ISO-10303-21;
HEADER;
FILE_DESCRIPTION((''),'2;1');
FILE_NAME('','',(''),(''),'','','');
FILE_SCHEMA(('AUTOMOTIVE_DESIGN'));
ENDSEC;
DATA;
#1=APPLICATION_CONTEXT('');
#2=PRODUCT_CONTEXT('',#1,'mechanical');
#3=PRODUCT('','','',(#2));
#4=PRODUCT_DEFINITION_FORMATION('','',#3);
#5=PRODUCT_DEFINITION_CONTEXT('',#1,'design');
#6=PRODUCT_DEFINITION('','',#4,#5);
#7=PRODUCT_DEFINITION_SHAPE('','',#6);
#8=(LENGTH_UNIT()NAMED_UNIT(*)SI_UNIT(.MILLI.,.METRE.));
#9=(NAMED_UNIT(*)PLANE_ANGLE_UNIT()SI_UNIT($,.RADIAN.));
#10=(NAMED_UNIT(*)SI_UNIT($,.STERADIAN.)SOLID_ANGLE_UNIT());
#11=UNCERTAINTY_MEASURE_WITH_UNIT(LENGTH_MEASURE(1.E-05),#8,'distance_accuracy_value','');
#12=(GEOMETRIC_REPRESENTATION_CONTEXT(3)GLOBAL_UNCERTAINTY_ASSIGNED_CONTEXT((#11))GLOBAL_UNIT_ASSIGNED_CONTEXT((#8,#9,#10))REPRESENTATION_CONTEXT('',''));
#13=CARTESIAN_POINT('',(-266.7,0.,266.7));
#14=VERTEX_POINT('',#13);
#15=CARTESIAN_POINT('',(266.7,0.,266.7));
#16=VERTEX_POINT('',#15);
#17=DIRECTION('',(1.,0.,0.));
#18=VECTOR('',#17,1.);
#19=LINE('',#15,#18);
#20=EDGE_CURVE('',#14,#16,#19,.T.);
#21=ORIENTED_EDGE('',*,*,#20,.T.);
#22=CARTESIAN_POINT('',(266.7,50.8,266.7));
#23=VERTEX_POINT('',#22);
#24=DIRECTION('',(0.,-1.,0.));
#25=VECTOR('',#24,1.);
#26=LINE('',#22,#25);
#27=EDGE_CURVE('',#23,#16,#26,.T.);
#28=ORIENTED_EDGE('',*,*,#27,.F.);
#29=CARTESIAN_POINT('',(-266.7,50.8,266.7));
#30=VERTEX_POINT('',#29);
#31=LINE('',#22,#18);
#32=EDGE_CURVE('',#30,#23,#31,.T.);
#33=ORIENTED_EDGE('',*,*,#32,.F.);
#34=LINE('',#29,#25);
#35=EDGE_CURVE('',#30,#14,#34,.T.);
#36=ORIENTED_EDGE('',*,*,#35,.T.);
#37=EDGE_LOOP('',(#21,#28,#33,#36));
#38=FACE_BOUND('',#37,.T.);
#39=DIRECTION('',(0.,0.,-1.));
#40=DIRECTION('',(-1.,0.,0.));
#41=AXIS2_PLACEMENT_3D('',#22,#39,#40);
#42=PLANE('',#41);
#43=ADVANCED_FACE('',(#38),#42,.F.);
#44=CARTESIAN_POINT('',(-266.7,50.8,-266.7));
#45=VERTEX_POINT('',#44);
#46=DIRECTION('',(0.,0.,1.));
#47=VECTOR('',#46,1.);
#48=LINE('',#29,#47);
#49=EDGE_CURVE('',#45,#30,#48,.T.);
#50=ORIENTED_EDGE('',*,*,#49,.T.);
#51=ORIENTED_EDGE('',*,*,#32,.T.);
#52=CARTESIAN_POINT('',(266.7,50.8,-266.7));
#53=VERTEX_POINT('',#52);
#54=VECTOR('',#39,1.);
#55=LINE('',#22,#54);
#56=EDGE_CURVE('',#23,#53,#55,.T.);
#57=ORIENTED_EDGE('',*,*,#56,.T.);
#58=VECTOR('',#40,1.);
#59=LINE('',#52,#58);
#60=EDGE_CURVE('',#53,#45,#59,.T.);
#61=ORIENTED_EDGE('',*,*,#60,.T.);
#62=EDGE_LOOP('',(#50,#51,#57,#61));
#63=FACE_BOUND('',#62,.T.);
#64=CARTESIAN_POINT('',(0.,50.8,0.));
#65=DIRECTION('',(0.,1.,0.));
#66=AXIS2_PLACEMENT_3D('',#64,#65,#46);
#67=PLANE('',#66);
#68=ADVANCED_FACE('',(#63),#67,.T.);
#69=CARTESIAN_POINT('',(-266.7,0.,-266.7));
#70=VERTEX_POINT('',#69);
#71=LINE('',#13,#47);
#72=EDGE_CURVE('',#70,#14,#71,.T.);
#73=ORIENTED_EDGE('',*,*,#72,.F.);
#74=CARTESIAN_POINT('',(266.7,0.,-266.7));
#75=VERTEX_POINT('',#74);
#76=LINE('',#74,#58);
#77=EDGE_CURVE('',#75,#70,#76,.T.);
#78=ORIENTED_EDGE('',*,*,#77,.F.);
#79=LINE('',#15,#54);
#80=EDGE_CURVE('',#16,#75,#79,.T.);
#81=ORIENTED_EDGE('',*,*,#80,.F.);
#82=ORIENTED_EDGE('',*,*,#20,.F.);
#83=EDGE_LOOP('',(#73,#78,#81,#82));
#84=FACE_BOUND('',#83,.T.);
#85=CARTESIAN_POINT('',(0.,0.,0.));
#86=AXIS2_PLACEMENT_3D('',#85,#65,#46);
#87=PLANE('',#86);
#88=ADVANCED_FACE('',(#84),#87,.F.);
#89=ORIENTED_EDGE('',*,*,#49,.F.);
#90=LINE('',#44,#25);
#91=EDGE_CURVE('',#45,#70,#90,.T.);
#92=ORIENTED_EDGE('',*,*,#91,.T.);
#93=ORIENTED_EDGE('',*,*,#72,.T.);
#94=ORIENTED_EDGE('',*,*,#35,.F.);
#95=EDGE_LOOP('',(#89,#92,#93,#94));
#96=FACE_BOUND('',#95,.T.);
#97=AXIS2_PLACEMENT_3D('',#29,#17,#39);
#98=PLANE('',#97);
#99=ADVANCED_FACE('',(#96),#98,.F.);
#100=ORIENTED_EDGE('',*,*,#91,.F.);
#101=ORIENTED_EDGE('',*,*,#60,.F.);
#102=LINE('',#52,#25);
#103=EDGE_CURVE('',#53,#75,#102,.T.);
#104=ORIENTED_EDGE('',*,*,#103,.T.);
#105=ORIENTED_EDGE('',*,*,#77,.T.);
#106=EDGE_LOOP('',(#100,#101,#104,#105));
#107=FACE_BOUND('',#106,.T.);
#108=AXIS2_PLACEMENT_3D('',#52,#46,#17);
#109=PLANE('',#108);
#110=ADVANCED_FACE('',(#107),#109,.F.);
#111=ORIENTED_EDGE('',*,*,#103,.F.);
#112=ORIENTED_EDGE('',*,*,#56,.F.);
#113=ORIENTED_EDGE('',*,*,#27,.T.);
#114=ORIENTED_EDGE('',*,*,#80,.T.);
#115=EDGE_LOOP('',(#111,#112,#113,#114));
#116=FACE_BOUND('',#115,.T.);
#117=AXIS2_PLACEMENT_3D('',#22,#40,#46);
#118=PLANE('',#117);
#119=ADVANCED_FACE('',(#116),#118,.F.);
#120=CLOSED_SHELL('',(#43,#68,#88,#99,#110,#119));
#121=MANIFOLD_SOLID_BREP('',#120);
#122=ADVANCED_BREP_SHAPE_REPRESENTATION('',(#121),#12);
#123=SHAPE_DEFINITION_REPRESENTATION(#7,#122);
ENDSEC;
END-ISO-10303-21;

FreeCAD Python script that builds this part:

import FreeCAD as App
import Part
import Sketcher
Q = App.Units.Quantity


def add_polygon(sketch, points):
    """Adds a closed chain of lines whose ends are joined by coincident constraints."""
    first, n = sketch.GeometryCount, len(points)
    for a, b in zip(points, points[1:] + points[:1]):
        sketch.addGeometry(Part.LineSegment(App.Vector(*a, 0), App.Vector(*b, 0)), False)
    for i in range(n):
        sketch.addConstraint(Sketcher.Constraint("Coincident", first + i, 2, first + (i + 1) % n, 1))

doc = App.newDocument("Part")
body = doc.addObject("PartDesign::Body", "Body")

sketch1 = body.newObject("Sketcher::SketchObject", "Sketch")
sketch1.AttachmentSupport = (doc.getObject("XZ_Plane"), [""])
sketch1.MapMode = "FlatFace"
add_polygon(sketch1, [(-267, -267), (-267, 267), (267, 267), (267, -267)])
sketch1.addConstraint([
    Sketcher.Constraint("Vertical", 0),
    Sketcher.Constraint("Horizontal", 1),
    Sketcher.Constraint("Vertical", 2),
    Sketcher.Constraint("Horizontal", 3),
    Sketcher.Constraint("Symmetric", 0, 2, 2, 2, -1, 1),
    Sketcher.Constraint("Equal", 3, 0),
    Sketcher.Constraint("DistanceX", 1, 1, 1, 2, Q("21 in")),
])
pad1 = body.newObject("PartDesign::Pad", "Pad")
pad1.Profile = sketch1
pad1.Length = Q("2 in")
pad1.Reversed = True

doc.recompute()
